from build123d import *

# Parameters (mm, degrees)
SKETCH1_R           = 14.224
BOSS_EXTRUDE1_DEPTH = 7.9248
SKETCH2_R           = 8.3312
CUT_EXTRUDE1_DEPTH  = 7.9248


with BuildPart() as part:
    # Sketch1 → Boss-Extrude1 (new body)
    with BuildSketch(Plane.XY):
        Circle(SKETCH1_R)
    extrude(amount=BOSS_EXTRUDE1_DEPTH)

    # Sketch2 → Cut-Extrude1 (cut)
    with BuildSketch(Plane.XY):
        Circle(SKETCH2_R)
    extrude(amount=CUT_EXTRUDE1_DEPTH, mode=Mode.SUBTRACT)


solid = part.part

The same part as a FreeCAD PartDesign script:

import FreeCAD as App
import Part
import Sketcher
from FreeCAD import Vector
Q = App.Units.Quantity

doc = App.newDocument("Part")
params = doc.addObject("Spreadsheet::Sheet", "Params")
for row, (alias, value) in enumerate([
    ("sketch1_diameter", "1.12 in"),
    ("pad1_length", "0.312 in"),
    ("sketch2_diameter", "0.656 in"),
    ("pocket1_length", "0.312 in"),
], start=1):
    params.set(f"A{row}", alias)
    params.set(f"B{row}", "=" + value)
    params.setAlias(f"B{row}", alias)

body = doc.addObject("PartDesign::Body", "Body")

sketch1 = body.newObject("Sketcher::SketchObject", "Sketch")
sketch1.AttachmentSupport = (doc.getObject("XY_Plane"), [""])
sketch1.MapMode = "FlatFace"
sketch1.addGeometry(Part.Circle(Vector(0, 0, 0), Vector(0, 0, 1), 14), False)
sketch1.addConstraint([
    Sketcher.Constraint("Coincident", 0, 3, -1, 1),
    Sketcher.Constraint("Diameter", 0, Q("1.12 in")),
])
sketch1.setExpression("Constraints[1]", "Params.sketch1_diameter")
pad1 = body.newObject("PartDesign::Pad", "Pad")
pad1.Profile = sketch1
pad1.setExpression("Length", "Params.pad1_length")

sketch2 = body.newObject("Sketcher::SketchObject", "Sketch001")
sketch2.AttachmentSupport = (doc.getObject("XY_Plane"), [""])
sketch2.MapMode = "FlatFace"
sketch2.addGeometry(Part.Circle(Vector(0, 0, 0), Vector(0, 0, 1), 8), False)
sketch2.addConstraint([
    Sketcher.Constraint("Coincident", 0, 3, -1, 1),
    Sketcher.Constraint("Diameter", 0, Q("0.656 in")),
])
sketch2.setExpression("Constraints[1]", "Params.sketch2_diameter")
pocket1 = body.newObject("PartDesign::Pocket", "Pocket")
pocket1.Profile = sketch2
pocket1.setExpression("Length", "Params.pocket1_length")
pocket1.Reversed = True

doc.recompute()
